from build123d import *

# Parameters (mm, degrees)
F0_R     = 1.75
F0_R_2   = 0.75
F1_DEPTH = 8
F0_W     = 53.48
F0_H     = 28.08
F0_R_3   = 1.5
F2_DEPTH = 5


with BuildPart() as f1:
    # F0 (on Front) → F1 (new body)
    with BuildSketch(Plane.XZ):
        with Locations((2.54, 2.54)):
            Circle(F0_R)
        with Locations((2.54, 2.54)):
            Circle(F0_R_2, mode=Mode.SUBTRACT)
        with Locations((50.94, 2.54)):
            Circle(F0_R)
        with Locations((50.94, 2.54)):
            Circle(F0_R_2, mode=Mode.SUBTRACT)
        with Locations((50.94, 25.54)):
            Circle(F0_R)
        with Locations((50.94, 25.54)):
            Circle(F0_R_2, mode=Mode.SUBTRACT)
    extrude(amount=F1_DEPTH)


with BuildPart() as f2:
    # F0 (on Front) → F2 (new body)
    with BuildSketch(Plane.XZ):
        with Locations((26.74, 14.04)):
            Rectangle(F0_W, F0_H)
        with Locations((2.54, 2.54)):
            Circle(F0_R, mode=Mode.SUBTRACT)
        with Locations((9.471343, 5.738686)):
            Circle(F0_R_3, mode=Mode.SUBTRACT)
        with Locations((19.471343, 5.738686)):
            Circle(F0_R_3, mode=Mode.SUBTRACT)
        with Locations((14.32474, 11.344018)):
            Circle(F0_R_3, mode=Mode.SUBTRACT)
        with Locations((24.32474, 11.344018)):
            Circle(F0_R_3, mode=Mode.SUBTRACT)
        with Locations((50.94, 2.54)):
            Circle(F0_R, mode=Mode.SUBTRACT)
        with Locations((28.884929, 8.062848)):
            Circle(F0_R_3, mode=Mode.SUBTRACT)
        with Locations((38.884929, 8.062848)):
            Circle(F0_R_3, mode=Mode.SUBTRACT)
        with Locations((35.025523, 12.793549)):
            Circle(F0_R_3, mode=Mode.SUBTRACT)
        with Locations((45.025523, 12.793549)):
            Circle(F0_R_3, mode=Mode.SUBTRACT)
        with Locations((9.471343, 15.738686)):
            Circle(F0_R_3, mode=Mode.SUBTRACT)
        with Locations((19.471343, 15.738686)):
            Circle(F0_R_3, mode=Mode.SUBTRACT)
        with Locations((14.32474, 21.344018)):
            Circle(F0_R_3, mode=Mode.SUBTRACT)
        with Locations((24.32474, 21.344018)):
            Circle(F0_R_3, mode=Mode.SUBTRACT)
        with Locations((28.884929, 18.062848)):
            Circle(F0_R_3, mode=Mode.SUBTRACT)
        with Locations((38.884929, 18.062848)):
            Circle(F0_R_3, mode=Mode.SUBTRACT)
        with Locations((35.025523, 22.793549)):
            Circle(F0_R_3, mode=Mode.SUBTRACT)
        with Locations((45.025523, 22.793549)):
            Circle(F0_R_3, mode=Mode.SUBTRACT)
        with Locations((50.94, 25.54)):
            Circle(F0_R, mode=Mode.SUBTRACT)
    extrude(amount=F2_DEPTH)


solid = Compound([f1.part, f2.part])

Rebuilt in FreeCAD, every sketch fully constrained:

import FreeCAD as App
import Part
import Sketcher
from FreeCAD import Vector
Q = App.Units.Quantity

doc = App.newDocument("Part")
body = doc.addObject("PartDesign::Body", "Body")
body.AllowCompound = True

# Sketch on XZ plane
sketch1 = body.newObject("Sketcher::SketchObject", "Sketch")
sketch1.AttachmentSupport = (doc.getObject("XZ_Plane"), [""])
sketch1.MapMode = "FlatFace"
sketch1.addGeometry([
    Part.Circle(Vector(2.5, 2.5, 0), Vector(0, 0, 1), 1.8),  # 0
    Part.Circle(Vector(2.5, 2.5, 0), Vector(0, 0, 1), 0.8),  # 1
    Part.Circle(Vector(50.9, 2.5, 0), Vector(0, 0, 1), 1.8),  # 2
    Part.Circle(Vector(50.9, 2.5, 0), Vector(0, 0, 1), 0.8),  # 3
    Part.Circle(Vector(50.9, 25.5, 0), Vector(0, 0, 1), 1.8),  # 4
    Part.Circle(Vector(50.9, 25.5, 0), Vector(0, 0, 1), 0.8),  # 5
], False)
sketch1.addConstraint([
    Sketcher.Constraint("Coincident", 1, 3, 0, 3),
    Sketcher.Constraint("Coincident", 3, 3, 2, 3),
    Sketcher.Constraint("Coincident", 5, 3, 4, 3),
    Sketcher.Constraint("Equal", 0, 2),
    Sketcher.Constraint("Equal", 1, 3),
    Sketcher.Constraint("Equal", 2, 4),
    Sketcher.Constraint("Equal", 3, 5),
    Sketcher.Constraint("Horizontal", 1, 3, 2, 3),
    Sketcher.Constraint("Vertical", 3, 3, 4, 3),
    Sketcher.Constraint("Diameter", 0, Q("3.5 mm")),
    Sketcher.Constraint("Diameter", 1, Q("1.5 mm")),
    Sketcher.Constraint("DistanceY", 2, 3, 4, 3, Q("23 mm")),
    Sketcher.Constraint("DistanceX", 0, 3, 2, 3, Q("48.4 mm")),
    Sketcher.Constraint("DistanceX", -1, 1, 0, 3, Q("2.54 mm")),
    Sketcher.Constraint("DistanceY", -1, 1, 0, 3, Q("2.54 mm")),
])
pad1 = body.newObject("PartDesign::Pad", "Pad")
pad1.Profile = sketch1
pad1.Length = 8
body2 = doc.addObject("PartDesign::Body", "Body001")

# Sketch on XZ plane
sketch2 = body2.newObject("Sketcher::SketchObject", "Sketch001")
sketch2.AttachmentSupport = (doc.getObject("XZ_Plane001"), [""])
sketch2.MapMode = "FlatFace"
sketch2.addGeometry([
    Part.LineSegment(Vector(0, 28.1, 0), Vector(0, 0, 0)),  # 0
    Part.LineSegment(Vector(0, 0, 0), Vector(53.5, 0, 0)),  # 1
    Part.LineSegment(Vector(53.5, 0, 0), Vector(53.5, 28.1, 0)),  # 2
    Part.LineSegment(Vector(53.5, 28.1, 0), Vector(0, 28.1, 0)),  # 3
    Part.Circle(Vector(2.5, 2.5, 0), Vector(0, 0, 1), 1.8),  # 4
    Part.Circle(Vector(9.5, 5.7, 0), Vector(0, 0, 1), 1.5),  # 5
    Part.Circle(Vector(19.5, 5.7, 0), Vector(0, 0, 1), 1.5),  # 6
    Part.Circle(Vector(14.3, 11.3, 0), Vector(0, 0, 1), 1.5),  # 7
    Part.Circle(Vector(24.3, 11.3, 0), Vector(0, 0, 1), 1.5),  # 8
    Part.Circle(Vector(50.9, 2.5, 0), Vector(0, 0, 1), 1.8),  # 9
    Part.Circle(Vector(28.9, 8.1, 0), Vector(0, 0, 1), 1.5),  # 10
    Part.Circle(Vector(38.9, 8.1, 0), Vector(0, 0, 1), 1.5),  # 11
    Part.Circle(Vector(35, 12.8, 0), Vector(0, 0, 1), 1.5),  # 12
    Part.Circle(Vector(45, 12.8, 0), Vector(0, 0, 1), 1.5),  # 13
    Part.Circle(Vector(9.5, 15.7, 0), Vector(0, 0, 1), 1.5),  # 14
    Part.Circle(Vector(19.5, 15.7, 0), Vector(0, 0, 1), 1.5),  # 15
    Part.Circle(Vector(14.3, 21.3, 0), Vector(0, 0, 1), 1.5),  # 16
    Part.Circle(Vector(24.3, 21.3, 0), Vector(0, 0, 1), 1.5),  # 17
    Part.Circle(Vector(28.9, 18.1, 0), Vector(0, 0, 1), 1.5),  # 18
    Part.Circle(Vector(38.9, 18.1, 0), Vector(0, 0, 1), 1.5),  # 19
    Part.Circle(Vector(35, 22.8, 0), Vector(0, 0, 1), 1.5),  # 20
    Part.Circle(Vector(45, 22.8, 0), Vector(0, 0, 1), 1.5),  # 21
    Part.Circle(Vector(50.9, 25.5, 0), Vector(0, 0, 1), 1.8),  # 22
], False)
sketch2.addConstraint([
    Sketcher.Constraint("Coincident", 0, 2, 1, 1),
    Sketcher.Constraint("Coincident", 1, 2, 2, 1),
    Sketcher.Constraint("Coincident", 2, 2, 3, 1),
    Sketcher.Constraint("Coincident", 3, 2, 0, 1),
    Sketcher.Constraint("Vertical", 0),
    Sketcher.Constraint("Horizontal", 1),
    Sketcher.Constraint("Vertical", 2),
    Sketcher.Constraint("Horizontal", 3),
    Sketcher.Constraint("Coincident", 0, 2, -1, 1),
    Sketcher.Constraint("Equal", 5, 6),
    Sketcher.Constraint("Equal", 6, 7),
    Sketcher.Constraint("Equal", 7, 8),
    Sketcher.Constraint("Equal", 4, 9),
    Sketcher.Constraint("Equal", 8, 10),
    Sketcher.Constraint("Equal", 10, 11),
    Sketcher.Constraint("Equal", 11, 12),
    Sketcher.Constraint("Equal", 12, 13),
    Sketcher.Constraint("Equal", 13, 14),
    Sketcher.Constraint("Equal", 14, 15),
    Sketcher.Constraint("Equal", 15, 16),
    Sketcher.Constraint("Equal", 16, 17),
    Sketcher.Constraint("Equal", 17, 18),
    Sketcher.Constraint("Equal", 18, 19),
    Sketcher.Constraint("Equal", 19, 20),
    Sketcher.Constraint("Equal", 20, 21),
    Sketcher.Constraint("Equal", 9, 22),
    Sketcher.Constraint("Horizontal", 5, 3, 6, 3),
    Sketcher.Constraint("Horizontal", 7, 3, 8, 3),
    Sketcher.Constraint("Horizontal", 4, 3, 9, 3),
    Sketcher.Constraint("Horizontal", 10, 3, 11, 3),
    Sketcher.Constraint("Horizontal", 12, 3, 13, 3),
    Sketcher.Constraint("Horizontal", 14, 3, 15, 3),
    Sketcher.Constraint("Horizontal", 16, 3, 17, 3),
    Sketcher.Constraint("Horizontal", 18, 3, 19, 3),
    Sketcher.Constraint("Horizontal", 20, 3, 21, 3),
    Sketcher.Constraint("Vertical", 5, 3, 14, 3),
    Sketcher.Constraint("Vertical", 6, 3, 15, 3),
    Sketcher.Constraint("Vertical", 7, 3, 16, 3),
    Sketcher.Constraint("Vertical", 8, 3, 17, 3),
    Sketcher.Constraint("Vertical", 10, 3, 18, 3),
    Sketcher.Constraint("Vertical", 11, 3, 19, 3),
    Sketcher.Constraint("Vertical", 12, 3, 20, 3),
    Sketcher.Constraint("Vertical", 13, 3, 21, 3),
    Sketcher.Constraint("Vertical", 9, 3, 22, 3),
    Sketcher.Constraint("Diameter", 5, Q("3 mm")),
    Sketcher.Constraint("Diameter", 4, Q("3.5 mm")),
    Sketcher.Constraint("DistanceX", 5, 3, 6, 3, Q("10 mm")),
    Sketcher.Constraint("DistanceX", 7, 3, 8, 3, Q("10 mm")),
    Sketcher.Constraint("DistanceX", 10, 3, 11, 3, Q("10 mm")),
    Sketcher.Constraint("DistanceX", 12, 3, 13, 3, Q("10 mm")),
    Sketcher.Constraint("DistanceY", 5, 3, 14, 3, Q("10 mm")),
    Sketcher.Constraint("DistanceY", 7, 3, 16, 3, Q("10 mm")),
    Sketcher.Constraint("DistanceY", 10, 3, 18, 3, Q("10 mm")),
    Sketcher.Constraint("DistanceY", 12, 3, 20, 3, Q("10 mm")),
    Sketcher.Constraint("DistanceX", 1, 1, 1, 2, Q("53.48 mm")),
    Sketcher.Constraint("DistanceY", 0, 2, 0, 1, Q("28.08 mm")),
    Sketcher.Constraint("DistanceX", 4, 3, 9, 3, Q("48.4 mm")),
    Sketcher.Constraint("DistanceX", -1, 1, 4, 3, Q("2.54 mm")),
    Sketcher.Constraint("DistanceY", -1, 1, 4, 3, Q("2.54 mm")),
    Sketcher.Constraint("DistanceY", -1, 1, 22, 3, Q("25.54 mm")),
    Sketcher.Constraint("DistanceY", 11, 3, 12, 3, Q("4.730701 mm")),
    Sketcher.Constraint("DistanceX", -1, 1, 7, 3, Q("14.32474 mm")),
    Sketcher.Constraint("DistanceX", -1, 1, 10, 3, Q("28.884929 mm")),
    Sketcher.Constraint("DistanceY", -1, 1, 10, 3, Q("8.062848 mm")),
    Sketcher.Constraint("DistanceY", 5, 3, 7, 3, Q("5.605332 mm")),
    Sketcher.Constraint("DistanceY", 10, 3, 8, 3, Q("3.28117 mm")),
    Sketcher.Constraint("DistanceX", 6, 3, 12, 3, Q("15.55418 mm")),
    Sketcher.Constraint("DistanceX", -1, 1, 5, 3, Q("9.471343 mm")),
])
pad2 = body2.newObject("PartDesign::Pad", "Pad001")
pad2.Profile = sketch2
pad2.Length = 5

doc.recompute()
